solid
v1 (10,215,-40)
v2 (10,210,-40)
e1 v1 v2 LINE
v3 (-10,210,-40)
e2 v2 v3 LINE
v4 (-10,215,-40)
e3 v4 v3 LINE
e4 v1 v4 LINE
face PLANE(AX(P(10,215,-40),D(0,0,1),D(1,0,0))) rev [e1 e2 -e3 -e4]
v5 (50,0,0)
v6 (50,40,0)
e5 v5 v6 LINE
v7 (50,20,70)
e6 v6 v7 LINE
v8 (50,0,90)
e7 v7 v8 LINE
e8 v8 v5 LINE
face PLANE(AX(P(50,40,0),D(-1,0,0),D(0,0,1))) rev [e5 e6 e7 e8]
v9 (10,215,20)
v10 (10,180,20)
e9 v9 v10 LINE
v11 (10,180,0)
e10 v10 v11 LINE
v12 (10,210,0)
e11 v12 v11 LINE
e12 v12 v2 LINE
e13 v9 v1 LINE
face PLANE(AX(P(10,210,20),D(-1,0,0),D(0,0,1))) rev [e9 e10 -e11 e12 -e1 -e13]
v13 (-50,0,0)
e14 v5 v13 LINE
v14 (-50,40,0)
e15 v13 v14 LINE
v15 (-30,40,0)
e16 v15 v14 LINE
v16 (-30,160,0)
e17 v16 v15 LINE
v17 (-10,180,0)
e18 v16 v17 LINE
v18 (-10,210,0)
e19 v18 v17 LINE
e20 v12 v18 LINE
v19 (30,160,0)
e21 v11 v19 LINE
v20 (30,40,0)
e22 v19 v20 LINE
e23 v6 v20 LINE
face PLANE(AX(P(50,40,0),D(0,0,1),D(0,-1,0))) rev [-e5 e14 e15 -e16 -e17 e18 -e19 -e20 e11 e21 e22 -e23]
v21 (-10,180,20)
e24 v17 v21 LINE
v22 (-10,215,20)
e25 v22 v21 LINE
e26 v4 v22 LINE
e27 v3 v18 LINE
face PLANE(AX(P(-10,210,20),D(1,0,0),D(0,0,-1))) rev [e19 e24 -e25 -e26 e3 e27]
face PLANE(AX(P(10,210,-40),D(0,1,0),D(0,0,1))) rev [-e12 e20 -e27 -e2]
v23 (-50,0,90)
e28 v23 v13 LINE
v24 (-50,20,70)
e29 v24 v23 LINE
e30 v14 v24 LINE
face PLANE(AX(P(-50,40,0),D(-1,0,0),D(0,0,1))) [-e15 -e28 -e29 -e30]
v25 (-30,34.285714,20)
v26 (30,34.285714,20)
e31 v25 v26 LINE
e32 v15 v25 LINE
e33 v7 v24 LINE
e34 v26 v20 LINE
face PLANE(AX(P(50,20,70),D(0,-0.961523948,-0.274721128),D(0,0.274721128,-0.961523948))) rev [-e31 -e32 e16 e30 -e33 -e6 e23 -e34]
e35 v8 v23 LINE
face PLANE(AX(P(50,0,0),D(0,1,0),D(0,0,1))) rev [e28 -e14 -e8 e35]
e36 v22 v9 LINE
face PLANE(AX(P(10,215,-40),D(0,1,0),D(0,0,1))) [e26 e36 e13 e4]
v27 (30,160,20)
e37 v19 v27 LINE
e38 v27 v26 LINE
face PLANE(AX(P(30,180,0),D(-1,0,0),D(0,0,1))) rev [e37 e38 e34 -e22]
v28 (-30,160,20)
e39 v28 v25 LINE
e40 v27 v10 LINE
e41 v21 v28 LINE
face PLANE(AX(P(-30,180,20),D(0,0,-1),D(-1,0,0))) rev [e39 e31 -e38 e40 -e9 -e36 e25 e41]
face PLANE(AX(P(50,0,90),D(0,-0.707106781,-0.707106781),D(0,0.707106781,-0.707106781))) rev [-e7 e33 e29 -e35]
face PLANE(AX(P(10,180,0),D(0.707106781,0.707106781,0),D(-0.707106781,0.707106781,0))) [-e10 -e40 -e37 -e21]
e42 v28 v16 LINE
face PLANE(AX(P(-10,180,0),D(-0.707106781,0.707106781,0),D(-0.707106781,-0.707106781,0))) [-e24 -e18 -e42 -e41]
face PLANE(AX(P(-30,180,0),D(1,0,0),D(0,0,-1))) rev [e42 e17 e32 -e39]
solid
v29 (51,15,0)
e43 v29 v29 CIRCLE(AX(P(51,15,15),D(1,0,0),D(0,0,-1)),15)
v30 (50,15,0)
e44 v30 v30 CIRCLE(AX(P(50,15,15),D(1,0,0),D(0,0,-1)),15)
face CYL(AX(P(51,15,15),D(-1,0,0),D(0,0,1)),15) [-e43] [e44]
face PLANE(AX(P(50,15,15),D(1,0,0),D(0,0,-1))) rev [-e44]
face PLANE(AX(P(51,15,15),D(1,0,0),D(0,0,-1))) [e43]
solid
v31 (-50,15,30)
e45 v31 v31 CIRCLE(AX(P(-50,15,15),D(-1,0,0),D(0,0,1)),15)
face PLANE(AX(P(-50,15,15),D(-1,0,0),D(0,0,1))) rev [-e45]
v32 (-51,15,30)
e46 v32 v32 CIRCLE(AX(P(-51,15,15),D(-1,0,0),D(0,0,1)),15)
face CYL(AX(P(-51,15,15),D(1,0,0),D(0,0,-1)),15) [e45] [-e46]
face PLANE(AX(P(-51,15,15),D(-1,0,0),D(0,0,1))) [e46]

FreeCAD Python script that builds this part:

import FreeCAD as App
import Part
import Sketcher

V = App.Vector
Q = App.Units.Quantity


def edges_at(feature, points):
    """Names of the edges that pass closest to the given points."""
    edges = feature.Shape.Edges
    near = lambda p: min(range(len(edges)), key=lambda i: edges[i].distToShape(Part.Vertex(*p))[0])
    return sorted({f"Edge{near(p) + 1}" for p in points})

doc = App.newDocument("Part")
params = doc.addObject("Spreadsheet::Sheet", "Params")
for row, (alias, value) in enumerate([
    ("sketch1_width", "40 mm"),
    ("sketch1_height", "90 mm"),
    ("pad1_length", "100 mm"),
    ("sketch2_width", "60 mm"),
    ("sketch2_height", "20 mm"),
    ("pad2_length", "180 mm"),
    ("chamfer_size", "20 mm"),
    ("sketch3_width", "20 mm"),
    ("pad3_length", "30 mm"),
    ("sketch4_width", "20 mm"),
    ("sketch4_height", "60 mm"),
    ("pad4_length", "5 mm"),
    ("sketch5_diameter", "30 mm"),
    ("pad5_length", "1 mm"),
    ("sketch6_diameter", "30 mm"),
    ("pad6_length", "1 mm"),
], start=1):
    params.set(f"A{row}", alias)
    params.set(f"B{row}", "=" + value)
    params.setAlias(f"B{row}", alias)

body = doc.addObject("PartDesign::Body", "Body")

# Sketch on YZ plane
sketch1 = body.newObject("Sketcher::SketchObject", "Sketch")
sketch1.AttachmentSupport = (doc.getObject("YZ_Plane"), [""])
sketch1.MapMode = "FlatFace"
sketch1.addGeometry(Part.LineSegment(V(0, 0, 0), V(40, 0, 0)), False)
sketch1.addGeometry(Part.LineSegment(V(40, 0, 0), V(20, 70, 0)), False)
sketch1.addGeometry(Part.LineSegment(V(20, 70, 0), V(0, 90, 0)), False)
sketch1.addGeometry(Part.LineSegment(V(0, 90, 0), V(0, 0, 0)), False)
sketch1.addConstraint(Sketcher.Constraint("Coincident", 0, 2, 1, 1))
sketch1.addConstraint(Sketcher.Constraint("Coincident", 1, 2, 2, 1))
sketch1.addConstraint(Sketcher.Constraint("Coincident", 2, 2, 3, 1))
sketch1.addConstraint(Sketcher.Constraint("Coincident", 3, 2, 0, 1))
sketch1.addConstraint(Sketcher.Constraint("Horizontal", 0))
sketch1.addConstraint(Sketcher.Constraint("Vertical", 3))
sketch1.addConstraint(Sketcher.Constraint("Coincident", 3, 2, -1, 1))
sketch1.addConstraint(Sketcher.Constraint("DistanceX", 0, 1, 0, 2, Q("40 mm")))
sketch1.addConstraint(Sketcher.Constraint("DistanceY", 3, 2, 3, 1, Q("90 mm")))
sketch1.addConstraint(Sketcher.Constraint("Angle", 2, Q("135 deg")))
sketch1.addConstraint(Sketcher.Constraint("DistanceX", -1, 1, 1, 2, Q("20 mm")))
sketch1.setExpression("Constraints[7]", "Params.sketch1_width")
sketch1.setExpression("Constraints[8]", "Params.sketch1_height")
pad1 = body.newObject("PartDesign::Pad", "Pad")
pad1.Profile = sketch1
pad1.setExpression("Length", "Params.pad1_length")
pad1.Midplane = True

# Sketch on XZ plane
sketch2 = body.newObject("Sketcher::SketchObject", "Sketch001")
sketch2.AttachmentSupport = (doc.getObject("XZ_Plane"), [""])
sketch2.MapMode = "FlatFace"
sketch2.addGeometry(Part.LineSegment(V(-30, 0, 0), V(-30, 20, 0)), False)
sketch2.addGeometry(Part.LineSegment(V(-30, 20, 0), V(30, 20, 0)), False)
sketch2.addGeometry(Part.LineSegment(V(30, 20, 0), V(30, 0, 0)), False)
sketch2.addGeometry(Part.LineSegment(V(30, 0, 0), V(-30, 0, 0)), False)
sketch2.addConstraint(Sketcher.Constraint("Coincident", 0, 2, 1, 1))
sketch2.addConstraint(Sketcher.Constraint("Coincident", 1, 2, 2, 1))
sketch2.addConstraint(Sketcher.Constraint("Coincident", 2, 2, 3, 1))
sketch2.addConstraint(Sketcher.Constraint("Coincident", 3, 2, 0, 1))
sketch2.addConstraint(Sketcher.Constraint("Vertical", 0))
sketch2.addConstraint(Sketcher.Constraint("Horizontal", 1))
sketch2.addConstraint(Sketcher.Constraint("Vertical", 2))
sketch2.addConstraint(Sketcher.Constraint("Horizontal", 3))
sketch2.addConstraint(Sketcher.Constraint("Symmetric", 2, 2, 3, 2, -1, 1))
sketch2.addConstraint(Sketcher.Constraint("DistanceX", 1, 1, 1, 2, Q("60 mm")))
sketch2.addConstraint(Sketcher.Constraint("DistanceY", 0, 1, 0, 2, Q("20 mm")))
sketch2.setExpression("Constraints[9]", "Params.sketch2_width")
sketch2.setExpression("Constraints[10]", "Params.sketch2_height")
pad2 = body.newObject("PartDesign::Pad", "Pad001")
pad2.Profile = sketch2
pad2.setExpression("Length", "Params.pad2_length")
pad2.Reversed = True
doc.recompute()

chamfer = body.newObject("PartDesign::Chamfer", "Chamfer")
chamfer.Base = (pad2, edges_at(pad2, [(-30, 180, 10), (30, 180, 10)]))
chamfer.setExpression("Size", "Params.chamfer_size")

# Sketch on XZ plane
sketch3 = body.newObject("Sketcher::SketchObject", "Sketch002")
sketch3.AttachmentSupport = (doc.getObject("XZ_Plane"), [""])
sketch3.MapMode = "FlatFace"
sketch3.AttachmentOffset = App.Placement(V(0, 0, -180), App.Rotation())
sketch3.addGeometry(Part.LineSegment(V(10, 20, 0), V(10, 0, 0)), False)
sketch3.addGeometry(Part.LineSegment(V(10, 0, 0), V(-10, 0, 0)), False)
sketch3.addGeometry(Part.LineSegment(V(-10, 0, 0), V(-10, 20, 0)), False)
sketch3.addGeometry(Part.LineSegment(V(-10, 20, 0), V(10, 20, 0)), False)
sketch3.addConstraint(Sketcher.Constraint("Coincident", 0, 2, 1, 1))
sketch3.addConstraint(Sketcher.Constraint("Coincident", 1, 2, 2, 1))
sketch3.addConstraint(Sketcher.Constraint("Coincident", 2, 2, 3, 1))
sketch3.addConstraint(Sketcher.Constraint("Coincident", 3, 2, 0, 1))
sketch3.addConstraint(Sketcher.Constraint("Vertical", 0))
sketch3.addConstraint(Sketcher.Constraint("Horizontal", 1))
sketch3.addConstraint(Sketcher.Constraint("Vertical", 2))
sketch3.addConstraint(Sketcher.Constraint("Horizontal", 3))
sketch3.addConstraint(Sketcher.Constraint("Symmetric", 0, 2, 1, 2, -1, 1))
sketch3.addConstraint(Sketcher.Constraint("Equal", 3, 0))
sketch3.addConstraint(Sketcher.Constraint("DistanceX", 1, 2, 1, 1, Q("20 mm")))
sketch3.setExpression("Constraints[10]", "Params.sketch3_width")
pad3 = body.newObject("PartDesign::Pad", "Pad002")
pad3.Profile = sketch3
pad3.setExpression("Length", "Params.pad3_length")
pad3.Reversed = True

# Sketch on XZ plane
sketch4 = body.newObject("Sketcher::SketchObject", "Sketch003")
sketch4.AttachmentSupport = (doc.getObject("XZ_Plane"), [""])
sketch4.MapMode = "FlatFace"
sketch4.AttachmentOffset = App.Placement(V(0, 0, -210), App.Rotation())
sketch4.addGeometry(Part.LineSegment(V(10, 20, 0), V(10, -40, 0)), False)
sketch4.addGeometry(Part.LineSegment(V(10, -40, 0), V(-10, -40, 0)), False)
sketch4.addGeometry(Part.LineSegment(V(-10, -40, 0), V(-10, 20, 0)), False)
sketch4.addGeometry(Part.LineSegment(V(-10, 20, 0), V(10, 20, 0)), False)
sketch4.addConstraint(Sketcher.Constraint("Coincident", 0, 2, 1, 1))
sketch4.addConstraint(Sketcher.Constraint("Coincident", 1, 2, 2, 1))
sketch4.addConstraint(Sketcher.Constraint("Coincident", 2, 2, 3, 1))
sketch4.addConstraint(Sketcher.Constraint("Coincident", 3, 2, 0, 1))
sketch4.addConstraint(Sketcher.Constraint("Vertical", 0))
sketch4.addConstraint(Sketcher.Constraint("Horizontal", 1))
sketch4.addConstraint(Sketcher.Constraint("Vertical", 2))
sketch4.addConstraint(Sketcher.Constraint("Horizontal", 3))
sketch4.addConstraint(Sketcher.Constraint("DistanceX", 1, 2, 1, 1, Q("20 mm")))
sketch4.addConstraint(Sketcher.Constraint("DistanceY", 0, 2, 0, 1, Q("60 mm")))
sketch4.addConstraint(Sketcher.Constraint("DistanceX", -1, 1, 0, 2, Q("10 mm")))
sketch4.addConstraint(Sketcher.Constraint("DistanceY", 0, 2, -1, 1, Q("40 mm")))
sketch4.setExpression("Constraints[8]", "Params.sketch4_width")
sketch4.setExpression("Constraints[9]", "Params.sketch4_height")
pad4 = body.newObject("PartDesign::Pad", "Pad003")
pad4.Profile = sketch4
pad4.setExpression("Length", "Params.pad4_length")
pad4.Reversed = True
body2 = doc.addObject("PartDesign::Body", "Body001")

# Sketch on YZ plane
sketch5 = body2.newObject("Sketcher::SketchObject", "Sketch004")
sketch5.AttachmentSupport = (doc.getObject("YZ_Plane001"), [""])
sketch5.MapMode = "FlatFace"
sketch5.AttachmentOffset = App.Placement(V(0, 0, 50), App.Rotation())
sketch5.addGeometry(Part.Circle(V(15, 15, 0), V(0, 0, 1), 15), False)
sketch5.addConstraint(Sketcher.Constraint("Diameter", 0, Q("30 mm")))
sketch5.addConstraint(Sketcher.Constraint("DistanceX", -1, 1, 0, 3, Q("15 mm")))
sketch5.addConstraint(Sketcher.Constraint("DistanceY", -1, 1, 0, 3, Q("15 mm")))
sketch5.setExpression("Constraints[0]", "Params.sketch5_diameter")
pad5 = body2.newObject("PartDesign::Pad", "Pad004")
pad5.Profile = sketch5
pad5.setExpression("Length", "Params.pad5_length")
body3 = doc.addObject("PartDesign::Body", "Body002")

# Sketch on YZ plane
sketch6 = body3.newObject("Sketcher::SketchObject", "Sketch005")
sketch6.AttachmentSupport = (doc.getObject("YZ_Plane002"), [""])
sketch6.MapMode = "FlatFace"
sketch6.AttachmentOffset = App.Placement(V(0, 0, -50), App.Rotation())
sketch6.addGeometry(Part.Circle(V(15, 15, 0), V(0, 0, 1), 15), False)
sketch6.addConstraint(Sketcher.Constraint("Diameter", 0, Q("30 mm")))
sketch6.addConstraint(Sketcher.Constraint("DistanceX", -1, 1, 0, 3, Q("15 mm")))
sketch6.addConstraint(Sketcher.Constraint("DistanceY", -1, 1, 0, 3, Q("15 mm")))
sketch6.setExpression("Constraints[0]", "Params.sketch6_diameter")
pad6 = body3.newObject("PartDesign::Pad", "Pad005")
pad6.Profile = sketch6
pad6.setExpression("Length", "Params.pad6_length")
pad6.Reversed = True

doc.recompute()
